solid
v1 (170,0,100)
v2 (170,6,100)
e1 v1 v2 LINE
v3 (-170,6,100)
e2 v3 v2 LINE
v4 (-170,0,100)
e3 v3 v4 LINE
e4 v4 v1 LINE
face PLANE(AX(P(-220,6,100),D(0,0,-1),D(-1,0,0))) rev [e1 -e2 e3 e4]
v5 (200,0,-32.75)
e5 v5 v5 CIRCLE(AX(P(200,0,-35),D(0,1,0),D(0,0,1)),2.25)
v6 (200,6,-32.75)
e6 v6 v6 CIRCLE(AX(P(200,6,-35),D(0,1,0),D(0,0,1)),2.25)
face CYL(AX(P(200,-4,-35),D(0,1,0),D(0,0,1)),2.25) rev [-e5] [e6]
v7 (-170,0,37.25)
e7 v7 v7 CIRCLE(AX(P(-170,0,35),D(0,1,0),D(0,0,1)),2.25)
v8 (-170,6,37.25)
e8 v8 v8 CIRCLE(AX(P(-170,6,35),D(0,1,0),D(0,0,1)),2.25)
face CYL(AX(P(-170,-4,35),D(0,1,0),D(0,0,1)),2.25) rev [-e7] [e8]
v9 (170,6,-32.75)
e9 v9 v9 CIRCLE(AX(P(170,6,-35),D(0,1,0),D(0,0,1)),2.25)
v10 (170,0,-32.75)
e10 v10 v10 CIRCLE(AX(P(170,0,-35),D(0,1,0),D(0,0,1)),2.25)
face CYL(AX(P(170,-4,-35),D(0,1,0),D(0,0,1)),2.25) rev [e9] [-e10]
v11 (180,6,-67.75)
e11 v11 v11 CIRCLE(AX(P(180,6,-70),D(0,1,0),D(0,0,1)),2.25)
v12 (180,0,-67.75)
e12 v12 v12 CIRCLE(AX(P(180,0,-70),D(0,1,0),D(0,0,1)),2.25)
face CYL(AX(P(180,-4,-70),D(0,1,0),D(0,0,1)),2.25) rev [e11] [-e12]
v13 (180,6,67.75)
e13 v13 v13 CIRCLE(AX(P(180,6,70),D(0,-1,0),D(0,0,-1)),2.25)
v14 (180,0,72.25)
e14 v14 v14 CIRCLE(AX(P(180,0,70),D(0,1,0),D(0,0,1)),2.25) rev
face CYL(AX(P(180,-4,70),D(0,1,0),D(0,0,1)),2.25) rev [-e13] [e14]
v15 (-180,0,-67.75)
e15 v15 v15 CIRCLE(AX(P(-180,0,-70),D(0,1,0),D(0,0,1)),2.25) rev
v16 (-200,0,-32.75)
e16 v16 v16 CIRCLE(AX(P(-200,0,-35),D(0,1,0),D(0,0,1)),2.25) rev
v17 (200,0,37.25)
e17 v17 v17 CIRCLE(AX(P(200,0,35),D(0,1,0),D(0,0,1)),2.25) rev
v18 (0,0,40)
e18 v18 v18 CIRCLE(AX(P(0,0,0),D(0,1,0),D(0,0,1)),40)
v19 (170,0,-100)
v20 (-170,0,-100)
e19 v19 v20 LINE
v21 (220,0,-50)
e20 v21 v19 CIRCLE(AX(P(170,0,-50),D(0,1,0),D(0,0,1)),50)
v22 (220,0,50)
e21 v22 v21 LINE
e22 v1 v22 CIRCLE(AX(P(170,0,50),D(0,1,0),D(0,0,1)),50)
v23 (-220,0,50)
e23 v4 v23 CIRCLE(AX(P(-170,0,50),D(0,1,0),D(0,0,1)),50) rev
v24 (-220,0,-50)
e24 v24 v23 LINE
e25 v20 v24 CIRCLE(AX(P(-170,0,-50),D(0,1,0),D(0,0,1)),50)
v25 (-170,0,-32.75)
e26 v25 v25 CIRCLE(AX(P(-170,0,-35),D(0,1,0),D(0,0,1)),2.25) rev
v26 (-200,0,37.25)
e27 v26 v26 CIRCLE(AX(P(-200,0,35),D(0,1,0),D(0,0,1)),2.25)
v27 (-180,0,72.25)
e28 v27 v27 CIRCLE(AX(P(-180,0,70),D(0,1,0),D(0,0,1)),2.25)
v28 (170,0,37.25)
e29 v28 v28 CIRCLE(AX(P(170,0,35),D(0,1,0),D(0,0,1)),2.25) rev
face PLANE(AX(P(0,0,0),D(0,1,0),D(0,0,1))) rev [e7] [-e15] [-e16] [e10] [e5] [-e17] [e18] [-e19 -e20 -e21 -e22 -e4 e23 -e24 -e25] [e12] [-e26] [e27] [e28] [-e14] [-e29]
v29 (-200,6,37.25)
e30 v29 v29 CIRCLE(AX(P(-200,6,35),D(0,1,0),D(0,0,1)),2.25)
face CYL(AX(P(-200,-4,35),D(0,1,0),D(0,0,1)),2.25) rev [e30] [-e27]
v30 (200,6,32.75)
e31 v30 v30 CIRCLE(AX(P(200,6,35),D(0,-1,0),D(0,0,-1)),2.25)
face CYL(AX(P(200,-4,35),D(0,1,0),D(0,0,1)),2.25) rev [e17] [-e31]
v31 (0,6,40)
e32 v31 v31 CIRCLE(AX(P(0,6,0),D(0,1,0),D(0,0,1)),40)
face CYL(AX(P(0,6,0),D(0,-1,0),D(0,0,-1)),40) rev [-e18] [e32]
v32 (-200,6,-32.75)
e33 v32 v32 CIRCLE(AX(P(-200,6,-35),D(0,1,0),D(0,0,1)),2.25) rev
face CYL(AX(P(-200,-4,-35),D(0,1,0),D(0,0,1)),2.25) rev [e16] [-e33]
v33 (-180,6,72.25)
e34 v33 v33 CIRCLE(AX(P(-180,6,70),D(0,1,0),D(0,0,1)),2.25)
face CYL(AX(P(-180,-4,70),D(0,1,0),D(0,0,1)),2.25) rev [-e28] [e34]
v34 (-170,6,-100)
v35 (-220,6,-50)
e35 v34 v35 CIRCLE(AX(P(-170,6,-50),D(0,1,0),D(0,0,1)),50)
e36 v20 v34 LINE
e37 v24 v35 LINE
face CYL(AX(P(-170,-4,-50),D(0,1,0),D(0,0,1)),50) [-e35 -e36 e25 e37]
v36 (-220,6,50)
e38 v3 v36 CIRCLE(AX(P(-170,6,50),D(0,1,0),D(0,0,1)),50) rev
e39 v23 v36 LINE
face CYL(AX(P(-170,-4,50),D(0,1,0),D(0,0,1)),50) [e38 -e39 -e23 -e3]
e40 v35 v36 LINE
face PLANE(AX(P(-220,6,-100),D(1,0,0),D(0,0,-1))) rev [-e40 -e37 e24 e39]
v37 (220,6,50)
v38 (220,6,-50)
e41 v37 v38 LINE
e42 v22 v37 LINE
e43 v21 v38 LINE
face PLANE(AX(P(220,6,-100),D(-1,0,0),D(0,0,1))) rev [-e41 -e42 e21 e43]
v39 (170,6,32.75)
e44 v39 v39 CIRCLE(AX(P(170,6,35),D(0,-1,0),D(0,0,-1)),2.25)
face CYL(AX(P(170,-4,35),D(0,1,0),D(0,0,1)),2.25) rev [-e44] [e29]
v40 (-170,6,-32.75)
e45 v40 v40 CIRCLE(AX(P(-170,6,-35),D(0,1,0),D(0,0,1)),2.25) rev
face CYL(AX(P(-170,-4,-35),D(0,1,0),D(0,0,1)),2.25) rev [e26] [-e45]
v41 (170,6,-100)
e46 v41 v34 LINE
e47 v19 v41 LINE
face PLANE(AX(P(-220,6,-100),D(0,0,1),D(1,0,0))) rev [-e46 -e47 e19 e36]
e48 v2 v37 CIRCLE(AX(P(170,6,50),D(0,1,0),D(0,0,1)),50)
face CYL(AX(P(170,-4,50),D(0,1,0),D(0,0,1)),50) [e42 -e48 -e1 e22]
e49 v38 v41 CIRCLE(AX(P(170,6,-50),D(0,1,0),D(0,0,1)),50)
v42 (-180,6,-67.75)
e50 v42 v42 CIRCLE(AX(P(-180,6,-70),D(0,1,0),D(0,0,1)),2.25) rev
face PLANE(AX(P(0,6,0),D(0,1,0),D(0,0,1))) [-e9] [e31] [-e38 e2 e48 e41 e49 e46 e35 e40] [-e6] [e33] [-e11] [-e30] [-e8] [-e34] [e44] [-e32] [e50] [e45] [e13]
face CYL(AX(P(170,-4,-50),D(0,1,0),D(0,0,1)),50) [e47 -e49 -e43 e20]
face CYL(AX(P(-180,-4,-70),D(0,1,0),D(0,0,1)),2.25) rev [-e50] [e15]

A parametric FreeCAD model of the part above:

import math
import FreeCAD as App
import Part
import Sketcher
from FreeCAD import Vector
Q = App.Units.Quantity

doc = App.newDocument("Part")
body = doc.addObject("PartDesign::Body", "Body")

sketch1 = body.newObject("Sketcher::SketchObject", "Sketch")
sketch1.AttachmentSupport = (doc.getObject("XZ_Plane"), [""])
sketch1.MapMode = "FlatFace"
sketch1.addGeometry(Part.LineSegment(Vector(-220, -100, 0), Vector(-220, 100, 0)), False)
sketch1.addGeometry(Part.LineSegment(Vector(-220, 100, 0), Vector(220, 100, 0)), False)
sketch1.addGeometry(Part.LineSegment(Vector(220, 100, 0), Vector(220, -100, 0)), False)
sketch1.addGeometry(Part.LineSegment(Vector(220, -100, 0), Vector(-220, -100, 0)), False)
sketch1.addGeometry(Part.Circle(Vector(0, 0, 0), Vector(0, 0, 1), 40), False)
sketch1.addConstraint(Sketcher.Constraint("Coincident", 0, 2, 1, 1))
sketch1.addConstraint(Sketcher.Constraint("Coincident", 1, 2, 2, 1))
sketch1.addConstraint(Sketcher.Constraint("Coincident", 2, 2, 3, 1))
sketch1.addConstraint(Sketcher.Constraint("Coincident", 3, 2, 0, 1))
sketch1.addConstraint(Sketcher.Constraint("Vertical", 0))
sketch1.addConstraint(Sketcher.Constraint("Horizontal", 1))
sketch1.addConstraint(Sketcher.Constraint("Vertical", 2))
sketch1.addConstraint(Sketcher.Constraint("Horizontal", 3))
sketch1.addConstraint(Sketcher.Constraint("Coincident", 4, 3, -1, 1))
sketch1.addConstraint(Sketcher.Constraint("Symmetric", 0, 2, 2, 2, -1, 1))
sketch1.addConstraint(Sketcher.Constraint("Diameter", 4, Q("80 mm")))
sketch1.addConstraint(Sketcher.Constraint("DistanceX", 1, 1, 1, 2, Q("440 mm")))
sketch1.addConstraint(Sketcher.Constraint("DistanceY", 0, 1, 0, 2, Q("200 mm")))
pad1 = body.newObject("PartDesign::Pad", "Pad")
pad1.Profile = sketch1
pad1.Length = 6
pad1.Reversed = True

sketch2 = body.newObject("Sketcher::SketchObject", "Sketch001")
sketch2.AttachmentSupport = (doc.getObject("XZ_Plane"), [""])
sketch2.MapMode = "FlatFace"
sketch2.AttachmentOffset = App.Placement(Vector(0, 0, -6), App.Rotation())
sketch2.addGeometry(Part.LineSegment(Vector(-220, -100, 0), Vector(-220, -50, 0)), False)
sketch2.addGeometry(Part.ArcOfCircle(Part.Circle(Vector(-170, -50, 0), Vector(0, 0, 1), 50), math.radians(-180), math.radians(-90)), False)
sketch2.addGeometry(Part.LineSegment(Vector(-170, -100, 0), Vector(-220, -100, 0)), False)
sketch2.addGeometry(Part.ArcOfCircle(Part.Circle(Vector(-170, 50, 0), Vector(0, 0, 1), 50), math.radians(90), math.radians(180)), False)
sketch2.addGeometry(Part.LineSegment(Vector(-220, 50, 0), Vector(-220, 100, 0)), False)
sketch2.addGeometry(Part.LineSegment(Vector(-220, 100, 0), Vector(-170, 100, 0)), False)
sketch2.addGeometry(Part.LineSegment(Vector(220, -100, 0), Vector(170, -100, 0)), False)
sketch2.addGeometry(Part.ArcOfCircle(Part.Circle(Vector(170, -50, 0), Vector(0, 0, 1), 50), math.radians(-90), math.radians(0)), False)
sketch2.addGeometry(Part.LineSegment(Vector(220, -50, 0), Vector(220, -100, 0)), False)
sketch2.addGeometry(Part.ArcOfCircle(Part.Circle(Vector(170, 50, 0), Vector(0, 0, 1), 50), math.radians(0), math.radians(90)), False)
sketch2.addGeometry(Part.LineSegment(Vector(170, 100, 0), Vector(220, 100, 0)), False)
sketch2.addGeometry(Part.LineSegment(Vector(220, 100, 0), Vector(220, 50, 0)), False)
sketch2.addGeometry(Part.Circle(Vector(170, -35, 0), Vector(0, 0, 1), 2.2), False)
sketch2.addGeometry(Part.Circle(Vector(200, -35, 0), Vector(0, 0, 1), 2.2), False)
sketch2.addGeometry(Part.Circle(Vector(180, -70, 0), Vector(0, 0, 1), 2.2), False)
sketch2.addGeometry(Part.Circle(Vector(-180, -70, 0), Vector(0, 0, 1), 2.2), False)
sketch2.addGeometry(Part.Circle(Vector(-200, -35, 0), Vector(0, 0, 1), 2.2), False)
sketch2.addGeometry(Part.Circle(Vector(-170, -35, 0), Vector(0, 0, 1), 2.2), False)
sketch2.addGeometry(Part.Circle(Vector(-170, 35, 0), Vector(0, 0, 1), 2.2), False)
sketch2.addGeometry(Part.Circle(Vector(-200, 35, 0), Vector(0, 0, 1), 2.2), False)
sketch2.addGeometry(Part.Circle(Vector(-180, 70, 0), Vector(0, 0, 1), 2.2), False)
sketch2.addGeometry(Part.Circle(Vector(180, 70, 0), Vector(0, 0, 1), 2.2), False)
sketch2.addGeometry(Part.Circle(Vector(200, 35, 0), Vector(0, 0, 1), 2.2), False)
sketch2.addGeometry(Part.Circle(Vector(170, 35, 0), Vector(0, 0, 1), 2.2), False)
sketch2.addConstraint(Sketcher.Constraint("Tangent", 0, 2, 1, 1))
sketch2.addConstraint(Sketcher.Constraint("Tangent", 1, 2, 2, 1))
sketch2.addConstraint(Sketcher.Constraint("Coincident", 2, 2, 0, 1))
sketch2.addConstraint(Sketcher.Constraint("Tangent", 3, 2, 4, 1))
sketch2.addConstraint(Sketcher.Constraint("Coincident", 4, 2, 5, 1))
sketch2.addConstraint(Sketcher.Constraint("Tangent", 5, 2, 3, 1))
sketch2.addConstraint(Sketcher.Constraint("Tangent", 6, 2, 7, 1))
sketch2.addConstraint(Sketcher.Constraint("Tangent", 7, 2, 8, 1))
sketch2.addConstraint(Sketcher.Constraint("Coincident", 8, 2, 6, 1))
sketch2.addConstraint(Sketcher.Constraint("Tangent", 9, 2, 10, 1))
sketch2.addConstraint(Sketcher.Constraint("Coincident", 10, 2, 11, 1))
sketch2.addConstraint(Sketcher.Constraint("Tangent", 11, 2, 9, 1))
sketch2.addConstraint(Sketcher.Constraint("Vertical", 0))
sketch2.addConstraint(Sketcher.Constraint("Horizontal", 2))
sketch2.addConstraint(Sketcher.Constraint("Vertical", 4))
sketch2.addConstraint(Sketcher.Constraint("Horizontal", 5))
sketch2.addConstraint(Sketcher.Constraint("Horizontal", 6))
sketch2.addConstraint(Sketcher.Constraint("Vertical", 8))
sketch2.addConstraint(Sketcher.Constraint("Horizontal", 10))
sketch2.addConstraint(Sketcher.Constraint("Vertical", 11))
sketch2.addConstraint(Sketcher.Constraint("Equal", 1, 3))
sketch2.addConstraint(Sketcher.Constraint("Equal", 3, 7))
sketch2.addConstraint(Sketcher.Constraint("Equal", 7, 9))
sketch2.addConstraint(Sketcher.Constraint("Equal", 12, 13))
sketch2.addConstraint(Sketcher.Constraint("Equal", 13, 14))
sketch2.addConstraint(Sketcher.Constraint("Equal", 14, 15))
sketch2.addConstraint(Sketcher.Constraint("Equal", 15, 16))
sketch2.addConstraint(Sketcher.Constraint("Equal", 16, 17))
sketch2.addConstraint(Sketcher.Constraint("Equal", 17, 18))
sketch2.addConstraint(Sketcher.Constraint("Equal", 18, 19))
sketch2.addConstraint(Sketcher.Constraint("Equal", 19, 20))
sketch2.addConstraint(Sketcher.Constraint("Equal", 20, 21))
sketch2.addConstraint(Sketcher.Constraint("Equal", 21, 22))
sketch2.addConstraint(Sketcher.Constraint("Equal", 22, 23))
sketch2.addConstraint(Sketcher.Constraint("Symmetric", 3, 3, 7, 3, -1, 1))
sketch2.addConstraint(Sketcher.Constraint("Symmetric", 1, 3, 9, 3, -1, 1))
sketch2.addConstraint(Sketcher.Constraint("Symmetric", 12, 3, 18, 3, -1, 1))
sketch2.addConstraint(Sketcher.Constraint("Symmetric", 13, 3, 19, 3, -1, 1))
sketch2.addConstraint(Sketcher.Constraint("Symmetric", 14, 3, 20, 3, -1, 1))
sketch2.addConstraint(Sketcher.Constraint("Symmetric", 15, 3, 21, 3, -1, 1))
sketch2.addConstraint(Sketcher.Constraint("Symmetric", 16, 3, 22, 3, -1, 1))
sketch2.addConstraint(Sketcher.Constraint("Symmetric", 17, 3, 23, 3, -1, 1))
sketch2.addConstraint(Sketcher.Constraint("Symmetric", 1, 3, 7, 3, -2))
sketch2.addConstraint(Sketcher.Constraint("Symmetric", 14, 3, 15, 3, -2))
sketch2.addConstraint(Sketcher.Constraint("Symmetric", 13, 3, 16, 3, -2))
sketch2.addConstraint(Sketcher.Constraint("Symmetric", 12, 3, 17, 3, -2))
sketch2.addConstraint(Sketcher.Constraint("Horizontal", 12, 3, 13, 3))
sketch2.addConstraint(Sketcher.Constraint("Vertical", 9, 3, 12, 3))
sketch2.addConstraint(Sketcher.Constraint("Radius", 1, Q("50 mm")))
sketch2.addConstraint(Sketcher.Constraint("Diameter", 12, Q("4.5 mm")))
sketch2.addConstraint(Sketcher.Constraint("DistanceX", 1, 3, -1, 1, Q("170 mm")))
sketch2.addConstraint(Sketcher.Constraint("DistanceY", 1, 3, -1, 1, Q("50 mm")))
sketch2.addConstraint(Sketcher.Constraint("DistanceY", 12, 3, -1, 1, Q("35 mm")))
sketch2.addConstraint(Sketcher.Constraint("DistanceX", -1, 1, 13, 3, Q("200 mm")))
sketch2.addConstraint(Sketcher.Constraint("DistanceX", -1, 1, 14, 3, Q("180 mm")))
sketch2.addConstraint(Sketcher.Constraint("DistanceY", 14, 3, -1, 1, Q("70 mm")))
pocket1 = body.newObject("PartDesign::Pocket", "Pocket")
pocket1.Profile = sketch2
pocket1.Length = 10
pocket1.Reversed = True

doc.recompute()
